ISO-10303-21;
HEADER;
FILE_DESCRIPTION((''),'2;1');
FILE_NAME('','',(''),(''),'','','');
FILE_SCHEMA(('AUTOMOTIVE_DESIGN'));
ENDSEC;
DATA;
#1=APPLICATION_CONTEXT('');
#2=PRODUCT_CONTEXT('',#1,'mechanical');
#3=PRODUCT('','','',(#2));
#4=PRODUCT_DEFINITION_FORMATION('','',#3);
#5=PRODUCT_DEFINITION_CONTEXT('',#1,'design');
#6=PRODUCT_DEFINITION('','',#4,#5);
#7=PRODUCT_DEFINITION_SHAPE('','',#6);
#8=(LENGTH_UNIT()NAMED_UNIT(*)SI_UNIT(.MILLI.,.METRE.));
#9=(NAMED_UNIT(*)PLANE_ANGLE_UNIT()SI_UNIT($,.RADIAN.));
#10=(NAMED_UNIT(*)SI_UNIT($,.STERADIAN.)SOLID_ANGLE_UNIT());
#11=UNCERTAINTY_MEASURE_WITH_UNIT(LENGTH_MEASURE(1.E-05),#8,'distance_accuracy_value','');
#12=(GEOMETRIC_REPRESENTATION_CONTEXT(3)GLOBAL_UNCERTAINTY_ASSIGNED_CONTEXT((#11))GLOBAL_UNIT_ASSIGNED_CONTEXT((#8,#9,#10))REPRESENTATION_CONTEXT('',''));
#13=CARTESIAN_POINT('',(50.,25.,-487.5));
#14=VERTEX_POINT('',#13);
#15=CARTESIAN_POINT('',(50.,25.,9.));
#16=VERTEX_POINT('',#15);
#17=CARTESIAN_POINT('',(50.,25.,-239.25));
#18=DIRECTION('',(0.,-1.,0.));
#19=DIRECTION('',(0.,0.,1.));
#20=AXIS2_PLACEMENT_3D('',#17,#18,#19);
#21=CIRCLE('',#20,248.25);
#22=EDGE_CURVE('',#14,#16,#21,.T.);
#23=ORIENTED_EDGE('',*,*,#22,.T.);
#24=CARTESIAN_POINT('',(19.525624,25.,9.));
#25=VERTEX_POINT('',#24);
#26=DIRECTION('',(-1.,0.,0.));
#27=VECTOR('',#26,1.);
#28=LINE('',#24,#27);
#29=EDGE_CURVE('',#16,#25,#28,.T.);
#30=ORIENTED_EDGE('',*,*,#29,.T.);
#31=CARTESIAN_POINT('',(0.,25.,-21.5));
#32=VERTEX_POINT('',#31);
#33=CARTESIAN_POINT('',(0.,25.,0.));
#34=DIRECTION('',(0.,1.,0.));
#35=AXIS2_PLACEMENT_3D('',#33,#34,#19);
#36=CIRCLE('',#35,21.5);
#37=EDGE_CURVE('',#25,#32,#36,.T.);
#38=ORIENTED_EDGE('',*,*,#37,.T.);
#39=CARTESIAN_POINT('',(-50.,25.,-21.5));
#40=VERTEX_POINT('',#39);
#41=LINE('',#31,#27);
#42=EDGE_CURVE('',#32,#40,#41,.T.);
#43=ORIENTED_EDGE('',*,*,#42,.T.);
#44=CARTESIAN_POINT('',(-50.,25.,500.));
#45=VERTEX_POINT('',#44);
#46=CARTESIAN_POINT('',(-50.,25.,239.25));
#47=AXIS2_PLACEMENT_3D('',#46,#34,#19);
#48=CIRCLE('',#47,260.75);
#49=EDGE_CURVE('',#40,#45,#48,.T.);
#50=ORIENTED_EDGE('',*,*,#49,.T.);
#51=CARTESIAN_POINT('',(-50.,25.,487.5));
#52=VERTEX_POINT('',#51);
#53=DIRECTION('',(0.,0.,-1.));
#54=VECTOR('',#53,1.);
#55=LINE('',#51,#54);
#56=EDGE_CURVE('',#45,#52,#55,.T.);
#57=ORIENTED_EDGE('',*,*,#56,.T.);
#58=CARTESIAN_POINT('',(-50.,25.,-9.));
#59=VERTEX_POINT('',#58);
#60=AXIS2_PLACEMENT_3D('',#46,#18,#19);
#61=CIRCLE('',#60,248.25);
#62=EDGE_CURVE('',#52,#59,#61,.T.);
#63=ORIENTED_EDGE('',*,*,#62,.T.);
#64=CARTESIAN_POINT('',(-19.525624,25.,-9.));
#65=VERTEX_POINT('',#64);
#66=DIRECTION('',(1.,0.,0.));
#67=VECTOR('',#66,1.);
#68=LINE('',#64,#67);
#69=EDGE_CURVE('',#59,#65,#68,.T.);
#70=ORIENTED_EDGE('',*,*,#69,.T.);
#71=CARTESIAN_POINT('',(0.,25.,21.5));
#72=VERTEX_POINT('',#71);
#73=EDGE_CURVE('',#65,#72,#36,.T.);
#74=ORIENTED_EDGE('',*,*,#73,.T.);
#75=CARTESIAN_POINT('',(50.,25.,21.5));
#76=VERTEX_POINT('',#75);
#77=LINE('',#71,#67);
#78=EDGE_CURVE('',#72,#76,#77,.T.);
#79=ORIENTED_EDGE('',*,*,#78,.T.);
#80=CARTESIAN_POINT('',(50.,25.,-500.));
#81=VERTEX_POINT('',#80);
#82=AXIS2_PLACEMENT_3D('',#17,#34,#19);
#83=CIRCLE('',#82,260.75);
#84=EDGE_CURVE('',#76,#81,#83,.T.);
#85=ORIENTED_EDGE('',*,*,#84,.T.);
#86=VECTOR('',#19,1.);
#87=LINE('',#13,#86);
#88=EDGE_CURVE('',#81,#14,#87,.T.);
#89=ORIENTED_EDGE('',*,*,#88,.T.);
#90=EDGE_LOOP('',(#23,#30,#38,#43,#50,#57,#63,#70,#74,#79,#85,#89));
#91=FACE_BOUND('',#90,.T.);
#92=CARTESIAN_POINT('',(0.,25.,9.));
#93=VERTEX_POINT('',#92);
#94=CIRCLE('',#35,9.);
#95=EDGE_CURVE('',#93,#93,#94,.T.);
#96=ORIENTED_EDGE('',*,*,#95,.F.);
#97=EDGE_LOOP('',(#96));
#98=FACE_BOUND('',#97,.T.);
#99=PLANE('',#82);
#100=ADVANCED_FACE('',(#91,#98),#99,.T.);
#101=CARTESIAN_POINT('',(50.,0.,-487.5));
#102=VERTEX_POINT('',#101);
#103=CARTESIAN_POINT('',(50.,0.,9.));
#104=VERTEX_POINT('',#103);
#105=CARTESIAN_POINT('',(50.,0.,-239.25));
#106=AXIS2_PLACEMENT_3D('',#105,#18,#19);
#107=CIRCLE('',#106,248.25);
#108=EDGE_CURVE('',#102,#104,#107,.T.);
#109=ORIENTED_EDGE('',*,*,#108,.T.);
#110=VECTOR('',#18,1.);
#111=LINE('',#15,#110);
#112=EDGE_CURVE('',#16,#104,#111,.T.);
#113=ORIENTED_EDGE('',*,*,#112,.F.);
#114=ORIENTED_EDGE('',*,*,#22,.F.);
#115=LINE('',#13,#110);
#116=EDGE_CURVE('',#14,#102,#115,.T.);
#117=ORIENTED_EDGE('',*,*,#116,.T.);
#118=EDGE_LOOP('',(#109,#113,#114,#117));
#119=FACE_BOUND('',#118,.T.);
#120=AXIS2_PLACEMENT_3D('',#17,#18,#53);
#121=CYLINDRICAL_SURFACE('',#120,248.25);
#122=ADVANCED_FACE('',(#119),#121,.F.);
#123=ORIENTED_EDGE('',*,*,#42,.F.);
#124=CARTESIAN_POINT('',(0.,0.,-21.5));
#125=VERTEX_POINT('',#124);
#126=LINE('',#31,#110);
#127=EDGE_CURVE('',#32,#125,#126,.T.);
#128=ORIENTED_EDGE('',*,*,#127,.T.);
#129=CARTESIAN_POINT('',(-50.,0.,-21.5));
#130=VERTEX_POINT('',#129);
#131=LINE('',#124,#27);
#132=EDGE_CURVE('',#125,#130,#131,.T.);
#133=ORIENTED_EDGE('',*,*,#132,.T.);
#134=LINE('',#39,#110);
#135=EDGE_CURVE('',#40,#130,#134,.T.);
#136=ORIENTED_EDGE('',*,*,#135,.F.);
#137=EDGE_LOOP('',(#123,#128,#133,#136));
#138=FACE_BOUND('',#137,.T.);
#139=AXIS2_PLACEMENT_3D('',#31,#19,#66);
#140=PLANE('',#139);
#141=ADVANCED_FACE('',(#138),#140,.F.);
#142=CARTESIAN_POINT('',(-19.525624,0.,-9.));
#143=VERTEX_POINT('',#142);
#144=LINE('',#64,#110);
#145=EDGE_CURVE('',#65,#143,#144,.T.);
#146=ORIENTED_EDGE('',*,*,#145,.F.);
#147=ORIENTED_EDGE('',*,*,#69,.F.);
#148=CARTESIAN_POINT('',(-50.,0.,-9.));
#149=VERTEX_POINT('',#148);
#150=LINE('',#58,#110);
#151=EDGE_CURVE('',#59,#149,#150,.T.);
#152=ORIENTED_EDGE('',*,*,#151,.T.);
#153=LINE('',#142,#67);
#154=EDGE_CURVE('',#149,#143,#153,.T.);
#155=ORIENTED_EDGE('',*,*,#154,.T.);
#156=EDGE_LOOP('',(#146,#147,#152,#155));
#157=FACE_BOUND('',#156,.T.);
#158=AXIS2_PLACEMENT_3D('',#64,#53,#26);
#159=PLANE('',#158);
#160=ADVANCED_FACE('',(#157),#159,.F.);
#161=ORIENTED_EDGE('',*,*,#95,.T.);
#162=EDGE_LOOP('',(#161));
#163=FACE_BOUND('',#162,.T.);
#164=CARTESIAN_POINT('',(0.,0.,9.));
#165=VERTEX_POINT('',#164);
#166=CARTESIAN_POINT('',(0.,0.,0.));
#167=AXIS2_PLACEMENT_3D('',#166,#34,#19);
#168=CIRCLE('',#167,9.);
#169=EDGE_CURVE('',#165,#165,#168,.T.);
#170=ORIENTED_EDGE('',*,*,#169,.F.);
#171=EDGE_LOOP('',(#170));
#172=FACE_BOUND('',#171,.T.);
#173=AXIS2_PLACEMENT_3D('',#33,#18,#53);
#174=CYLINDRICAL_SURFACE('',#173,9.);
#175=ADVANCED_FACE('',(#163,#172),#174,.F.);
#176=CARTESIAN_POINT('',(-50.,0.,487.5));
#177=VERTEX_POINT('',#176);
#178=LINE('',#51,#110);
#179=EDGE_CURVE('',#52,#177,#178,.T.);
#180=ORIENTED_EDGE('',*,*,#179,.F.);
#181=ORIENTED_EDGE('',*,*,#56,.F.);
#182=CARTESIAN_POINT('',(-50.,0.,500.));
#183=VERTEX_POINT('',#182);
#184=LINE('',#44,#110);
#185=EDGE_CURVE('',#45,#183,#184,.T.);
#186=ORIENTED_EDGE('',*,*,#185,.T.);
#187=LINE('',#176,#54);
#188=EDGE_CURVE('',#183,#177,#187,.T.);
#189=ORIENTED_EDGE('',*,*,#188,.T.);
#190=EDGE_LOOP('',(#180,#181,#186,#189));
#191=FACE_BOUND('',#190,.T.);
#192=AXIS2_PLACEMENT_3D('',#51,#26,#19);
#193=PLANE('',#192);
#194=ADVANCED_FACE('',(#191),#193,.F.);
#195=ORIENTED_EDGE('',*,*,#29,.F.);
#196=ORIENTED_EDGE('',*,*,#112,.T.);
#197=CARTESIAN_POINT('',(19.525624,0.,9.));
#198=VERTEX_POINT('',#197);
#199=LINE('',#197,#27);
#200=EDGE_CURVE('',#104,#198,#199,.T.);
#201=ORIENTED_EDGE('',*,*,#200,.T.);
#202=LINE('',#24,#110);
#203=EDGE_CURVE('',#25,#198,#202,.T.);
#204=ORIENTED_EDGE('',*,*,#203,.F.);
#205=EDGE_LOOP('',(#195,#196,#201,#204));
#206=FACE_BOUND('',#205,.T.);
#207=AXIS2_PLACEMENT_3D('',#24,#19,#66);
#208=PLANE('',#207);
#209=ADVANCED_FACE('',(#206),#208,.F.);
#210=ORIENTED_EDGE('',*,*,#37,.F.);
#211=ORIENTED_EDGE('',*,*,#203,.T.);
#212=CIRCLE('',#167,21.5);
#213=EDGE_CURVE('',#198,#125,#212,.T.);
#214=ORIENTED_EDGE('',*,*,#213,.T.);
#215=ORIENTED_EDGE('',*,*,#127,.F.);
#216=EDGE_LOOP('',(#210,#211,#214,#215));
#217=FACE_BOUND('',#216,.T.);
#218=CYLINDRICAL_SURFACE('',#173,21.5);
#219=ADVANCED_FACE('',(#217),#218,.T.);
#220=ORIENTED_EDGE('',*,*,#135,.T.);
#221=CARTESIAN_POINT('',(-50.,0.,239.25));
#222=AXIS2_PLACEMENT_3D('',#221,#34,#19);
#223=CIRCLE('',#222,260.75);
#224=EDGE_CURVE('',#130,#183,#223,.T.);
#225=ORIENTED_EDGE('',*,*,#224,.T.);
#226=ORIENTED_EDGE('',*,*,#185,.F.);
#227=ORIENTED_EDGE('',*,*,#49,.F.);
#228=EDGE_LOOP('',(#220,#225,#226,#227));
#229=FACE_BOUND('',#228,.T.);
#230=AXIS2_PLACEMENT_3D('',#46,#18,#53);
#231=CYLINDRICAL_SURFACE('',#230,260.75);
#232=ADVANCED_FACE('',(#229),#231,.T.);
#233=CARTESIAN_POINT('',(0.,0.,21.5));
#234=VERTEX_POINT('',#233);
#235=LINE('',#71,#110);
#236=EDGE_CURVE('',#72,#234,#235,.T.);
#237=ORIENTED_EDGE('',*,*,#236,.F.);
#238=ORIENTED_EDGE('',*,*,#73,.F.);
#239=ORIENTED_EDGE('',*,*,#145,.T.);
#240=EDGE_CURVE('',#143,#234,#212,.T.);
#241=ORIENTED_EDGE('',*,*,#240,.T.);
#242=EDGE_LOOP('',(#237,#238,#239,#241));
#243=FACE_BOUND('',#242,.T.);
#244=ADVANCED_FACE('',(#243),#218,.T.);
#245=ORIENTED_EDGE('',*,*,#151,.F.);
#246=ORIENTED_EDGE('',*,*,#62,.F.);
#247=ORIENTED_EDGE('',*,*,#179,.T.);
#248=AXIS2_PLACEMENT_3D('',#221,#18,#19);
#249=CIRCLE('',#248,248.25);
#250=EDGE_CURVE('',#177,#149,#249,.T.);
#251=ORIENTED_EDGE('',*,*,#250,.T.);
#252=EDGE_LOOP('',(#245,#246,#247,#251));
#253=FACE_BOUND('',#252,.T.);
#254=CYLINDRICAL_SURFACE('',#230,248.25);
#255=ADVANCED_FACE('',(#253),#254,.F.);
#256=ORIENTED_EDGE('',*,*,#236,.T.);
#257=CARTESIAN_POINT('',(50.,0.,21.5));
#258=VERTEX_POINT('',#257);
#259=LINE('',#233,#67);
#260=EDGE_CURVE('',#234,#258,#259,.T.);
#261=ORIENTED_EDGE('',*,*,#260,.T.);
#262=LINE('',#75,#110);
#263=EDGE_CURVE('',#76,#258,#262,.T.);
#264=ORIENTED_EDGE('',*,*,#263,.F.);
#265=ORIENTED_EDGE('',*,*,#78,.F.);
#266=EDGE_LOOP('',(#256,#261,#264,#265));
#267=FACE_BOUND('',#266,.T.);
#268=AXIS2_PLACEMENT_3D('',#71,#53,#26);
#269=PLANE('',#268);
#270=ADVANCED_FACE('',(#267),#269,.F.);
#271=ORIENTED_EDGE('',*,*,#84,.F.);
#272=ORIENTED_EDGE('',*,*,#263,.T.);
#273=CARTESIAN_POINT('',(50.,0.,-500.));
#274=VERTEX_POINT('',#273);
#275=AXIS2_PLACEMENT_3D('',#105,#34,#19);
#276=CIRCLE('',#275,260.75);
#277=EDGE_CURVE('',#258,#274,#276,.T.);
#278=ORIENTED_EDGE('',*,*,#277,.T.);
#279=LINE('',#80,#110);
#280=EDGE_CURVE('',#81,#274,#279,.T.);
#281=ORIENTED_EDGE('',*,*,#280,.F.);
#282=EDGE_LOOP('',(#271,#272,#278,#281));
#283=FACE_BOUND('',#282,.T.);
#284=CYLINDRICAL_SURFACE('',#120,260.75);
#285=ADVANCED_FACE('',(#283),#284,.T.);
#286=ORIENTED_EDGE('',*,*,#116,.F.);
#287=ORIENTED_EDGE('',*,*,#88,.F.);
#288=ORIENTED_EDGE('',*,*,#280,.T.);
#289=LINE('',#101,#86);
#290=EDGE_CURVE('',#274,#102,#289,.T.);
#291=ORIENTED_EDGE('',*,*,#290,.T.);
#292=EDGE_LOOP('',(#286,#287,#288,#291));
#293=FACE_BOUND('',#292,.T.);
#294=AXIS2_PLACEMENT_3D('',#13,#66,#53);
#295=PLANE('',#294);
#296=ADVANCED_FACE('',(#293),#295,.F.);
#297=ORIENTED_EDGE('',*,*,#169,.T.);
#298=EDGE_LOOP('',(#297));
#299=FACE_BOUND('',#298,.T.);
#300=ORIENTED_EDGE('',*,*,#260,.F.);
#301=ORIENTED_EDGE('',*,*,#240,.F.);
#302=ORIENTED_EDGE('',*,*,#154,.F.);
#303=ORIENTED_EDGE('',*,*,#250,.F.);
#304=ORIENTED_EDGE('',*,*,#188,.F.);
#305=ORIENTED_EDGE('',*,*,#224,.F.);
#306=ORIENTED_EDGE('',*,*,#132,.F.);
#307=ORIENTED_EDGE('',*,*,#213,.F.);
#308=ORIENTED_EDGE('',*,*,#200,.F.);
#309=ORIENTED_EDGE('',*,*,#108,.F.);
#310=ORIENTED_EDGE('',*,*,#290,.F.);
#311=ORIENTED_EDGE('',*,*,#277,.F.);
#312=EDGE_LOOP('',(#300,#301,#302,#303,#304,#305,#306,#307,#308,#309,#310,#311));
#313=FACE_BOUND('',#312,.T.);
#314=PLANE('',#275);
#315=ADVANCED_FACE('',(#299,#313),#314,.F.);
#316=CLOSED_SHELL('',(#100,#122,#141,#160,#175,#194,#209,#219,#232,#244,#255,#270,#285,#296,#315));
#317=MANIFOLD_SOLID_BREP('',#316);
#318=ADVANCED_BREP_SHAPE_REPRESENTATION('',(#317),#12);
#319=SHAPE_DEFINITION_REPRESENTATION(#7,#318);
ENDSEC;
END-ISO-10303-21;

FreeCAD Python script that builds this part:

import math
import FreeCAD as App
import Part
import Sketcher
from FreeCAD import Vector
Q = App.Units.Quantity

doc = App.newDocument("Part")
body = doc.addObject("PartDesign::Body", "Body")

sketch1 = body.newObject("Sketcher::SketchObject", "Sketch")
sketch1.AttachmentSupport = (doc.getObject("XZ_Plane"), [""])
sketch1.MapMode = "FlatFace"
sketch1.addGeometry([
    Part.LineSegment(Vector(50, 9, 0), Vector(19.525624, 9, 0)),
    Part.ArcOfCircle(Part.Circle(Vector(0, 0, 0), Vector(0, 0, 1), 21.5), math.radians(-90), math.radians(24.746525)),
    Part.LineSegment(Vector(0, -21.5, 0), Vector(-50, -21.5, 0)),
    Part.ArcOfCircle(Part.Circle(Vector(-50, 239.25, 0), Vector(0, 0, 1), 260.75), math.radians(90), math.radians(270)),
    Part.LineSegment(Vector(-50, 500, 0), Vector(-50, 487.5, 0)),
    Part.ArcOfCircle(Part.Circle(Vector(-50, 239.25, 0), Vector(0, 0, 1), 248.25), math.radians(90), math.radians(270)),
    Part.LineSegment(Vector(-50, -9, 0), Vector(-19.525624, -9, 0)),
    Part.ArcOfCircle(Part.Circle(Vector(0, 0, 0), Vector(0, 0, 1), 21.5), math.radians(90), math.radians(204.746525)),
    Part.LineSegment(Vector(0, 21.5, 0), Vector(50, 21.5, 0)),
    Part.ArcOfCircle(Part.Circle(Vector(50, -239.25, 0), Vector(0, 0, 1), 260.75), math.radians(-90), math.radians(90)),
    Part.LineSegment(Vector(50, -500, 0), Vector(50, -487.5, 0)),
    Part.ArcOfCircle(Part.Circle(Vector(50, -239.25, 0), Vector(0, 0, 1), 248.25), math.radians(-90), math.radians(90)),
    Part.Circle(Vector(0, 0, 0), Vector(0, 0, 1), 9),
], False)
sketch1.addConstraint([
    Sketcher.Constraint("Coincident", 0, 2, 1, 2),
    Sketcher.Constraint("Tangent", 1, 1, 2, 1),
    Sketcher.Constraint("Tangent", 2, 2, 3, 2),
    Sketcher.Constraint("Coincident", 3, 1, 4, 1),
    Sketcher.Constraint("Coincident", 4, 2, 5, 1),
    Sketcher.Constraint("Tangent", 5, 2, 6, 1),
    Sketcher.Constraint("Coincident", 6, 2, 7, 2),
    Sketcher.Constraint("Tangent", 7, 1, 8, 1),
    Sketcher.Constraint("Tangent", 8, 2, 9, 2),
    Sketcher.Constraint("Coincident", 9, 1, 10, 1),
    Sketcher.Constraint("Coincident", 10, 2, 11, 1),
    Sketcher.Constraint("Tangent", 11, 2, 0, 1),
    Sketcher.Constraint("Horizontal", 0),
    Sketcher.Constraint("Horizontal", 2),
    Sketcher.Constraint("Vertical", 4),
    Sketcher.Constraint("Horizontal", 6),
    Sketcher.Constraint("Horizontal", 8),
    Sketcher.Constraint("Vertical", 10),
    Sketcher.Constraint("Coincident", 1, 3, -1, 1),
    Sketcher.Constraint("Coincident", 7, 3, -1, 1),
    Sketcher.Constraint("Coincident", 12, 3, -1, 1),
    Sketcher.Constraint("Coincident", 5, 3, 3, 3),
    Sketcher.Constraint("Coincident", 11, 3, 9, 3),
    Sketcher.Constraint("Equal", 1, 7),
    Sketcher.Constraint("Equal", 3, 9),
    Sketcher.Constraint("Equal", 5, 11),
    Sketcher.Constraint("Vertical", 2, 2, 3, 1),
    Sketcher.Constraint("Vertical", 8, 2, 9, 1),
    Sketcher.Constraint("Equal", 0, 6),
    Sketcher.Constraint("Diameter", 12, Q("18 mm")),
    Sketcher.Constraint("Radius", 1, Q("21.5 mm")),
    Sketcher.Constraint("DistanceX", 2, 2, 2, 1, Q("50 mm")),
    Sketcher.Constraint("Radius", 3, Q("260.75 mm")),
    Sketcher.Constraint("Radius", 5, Q("248.25 mm")),
])
pad1 = body.newObject("PartDesign::Pad", "Pad")
pad1.Profile = sketch1
pad1.Length = 25
pad1.Reversed = True

doc.recompute()
